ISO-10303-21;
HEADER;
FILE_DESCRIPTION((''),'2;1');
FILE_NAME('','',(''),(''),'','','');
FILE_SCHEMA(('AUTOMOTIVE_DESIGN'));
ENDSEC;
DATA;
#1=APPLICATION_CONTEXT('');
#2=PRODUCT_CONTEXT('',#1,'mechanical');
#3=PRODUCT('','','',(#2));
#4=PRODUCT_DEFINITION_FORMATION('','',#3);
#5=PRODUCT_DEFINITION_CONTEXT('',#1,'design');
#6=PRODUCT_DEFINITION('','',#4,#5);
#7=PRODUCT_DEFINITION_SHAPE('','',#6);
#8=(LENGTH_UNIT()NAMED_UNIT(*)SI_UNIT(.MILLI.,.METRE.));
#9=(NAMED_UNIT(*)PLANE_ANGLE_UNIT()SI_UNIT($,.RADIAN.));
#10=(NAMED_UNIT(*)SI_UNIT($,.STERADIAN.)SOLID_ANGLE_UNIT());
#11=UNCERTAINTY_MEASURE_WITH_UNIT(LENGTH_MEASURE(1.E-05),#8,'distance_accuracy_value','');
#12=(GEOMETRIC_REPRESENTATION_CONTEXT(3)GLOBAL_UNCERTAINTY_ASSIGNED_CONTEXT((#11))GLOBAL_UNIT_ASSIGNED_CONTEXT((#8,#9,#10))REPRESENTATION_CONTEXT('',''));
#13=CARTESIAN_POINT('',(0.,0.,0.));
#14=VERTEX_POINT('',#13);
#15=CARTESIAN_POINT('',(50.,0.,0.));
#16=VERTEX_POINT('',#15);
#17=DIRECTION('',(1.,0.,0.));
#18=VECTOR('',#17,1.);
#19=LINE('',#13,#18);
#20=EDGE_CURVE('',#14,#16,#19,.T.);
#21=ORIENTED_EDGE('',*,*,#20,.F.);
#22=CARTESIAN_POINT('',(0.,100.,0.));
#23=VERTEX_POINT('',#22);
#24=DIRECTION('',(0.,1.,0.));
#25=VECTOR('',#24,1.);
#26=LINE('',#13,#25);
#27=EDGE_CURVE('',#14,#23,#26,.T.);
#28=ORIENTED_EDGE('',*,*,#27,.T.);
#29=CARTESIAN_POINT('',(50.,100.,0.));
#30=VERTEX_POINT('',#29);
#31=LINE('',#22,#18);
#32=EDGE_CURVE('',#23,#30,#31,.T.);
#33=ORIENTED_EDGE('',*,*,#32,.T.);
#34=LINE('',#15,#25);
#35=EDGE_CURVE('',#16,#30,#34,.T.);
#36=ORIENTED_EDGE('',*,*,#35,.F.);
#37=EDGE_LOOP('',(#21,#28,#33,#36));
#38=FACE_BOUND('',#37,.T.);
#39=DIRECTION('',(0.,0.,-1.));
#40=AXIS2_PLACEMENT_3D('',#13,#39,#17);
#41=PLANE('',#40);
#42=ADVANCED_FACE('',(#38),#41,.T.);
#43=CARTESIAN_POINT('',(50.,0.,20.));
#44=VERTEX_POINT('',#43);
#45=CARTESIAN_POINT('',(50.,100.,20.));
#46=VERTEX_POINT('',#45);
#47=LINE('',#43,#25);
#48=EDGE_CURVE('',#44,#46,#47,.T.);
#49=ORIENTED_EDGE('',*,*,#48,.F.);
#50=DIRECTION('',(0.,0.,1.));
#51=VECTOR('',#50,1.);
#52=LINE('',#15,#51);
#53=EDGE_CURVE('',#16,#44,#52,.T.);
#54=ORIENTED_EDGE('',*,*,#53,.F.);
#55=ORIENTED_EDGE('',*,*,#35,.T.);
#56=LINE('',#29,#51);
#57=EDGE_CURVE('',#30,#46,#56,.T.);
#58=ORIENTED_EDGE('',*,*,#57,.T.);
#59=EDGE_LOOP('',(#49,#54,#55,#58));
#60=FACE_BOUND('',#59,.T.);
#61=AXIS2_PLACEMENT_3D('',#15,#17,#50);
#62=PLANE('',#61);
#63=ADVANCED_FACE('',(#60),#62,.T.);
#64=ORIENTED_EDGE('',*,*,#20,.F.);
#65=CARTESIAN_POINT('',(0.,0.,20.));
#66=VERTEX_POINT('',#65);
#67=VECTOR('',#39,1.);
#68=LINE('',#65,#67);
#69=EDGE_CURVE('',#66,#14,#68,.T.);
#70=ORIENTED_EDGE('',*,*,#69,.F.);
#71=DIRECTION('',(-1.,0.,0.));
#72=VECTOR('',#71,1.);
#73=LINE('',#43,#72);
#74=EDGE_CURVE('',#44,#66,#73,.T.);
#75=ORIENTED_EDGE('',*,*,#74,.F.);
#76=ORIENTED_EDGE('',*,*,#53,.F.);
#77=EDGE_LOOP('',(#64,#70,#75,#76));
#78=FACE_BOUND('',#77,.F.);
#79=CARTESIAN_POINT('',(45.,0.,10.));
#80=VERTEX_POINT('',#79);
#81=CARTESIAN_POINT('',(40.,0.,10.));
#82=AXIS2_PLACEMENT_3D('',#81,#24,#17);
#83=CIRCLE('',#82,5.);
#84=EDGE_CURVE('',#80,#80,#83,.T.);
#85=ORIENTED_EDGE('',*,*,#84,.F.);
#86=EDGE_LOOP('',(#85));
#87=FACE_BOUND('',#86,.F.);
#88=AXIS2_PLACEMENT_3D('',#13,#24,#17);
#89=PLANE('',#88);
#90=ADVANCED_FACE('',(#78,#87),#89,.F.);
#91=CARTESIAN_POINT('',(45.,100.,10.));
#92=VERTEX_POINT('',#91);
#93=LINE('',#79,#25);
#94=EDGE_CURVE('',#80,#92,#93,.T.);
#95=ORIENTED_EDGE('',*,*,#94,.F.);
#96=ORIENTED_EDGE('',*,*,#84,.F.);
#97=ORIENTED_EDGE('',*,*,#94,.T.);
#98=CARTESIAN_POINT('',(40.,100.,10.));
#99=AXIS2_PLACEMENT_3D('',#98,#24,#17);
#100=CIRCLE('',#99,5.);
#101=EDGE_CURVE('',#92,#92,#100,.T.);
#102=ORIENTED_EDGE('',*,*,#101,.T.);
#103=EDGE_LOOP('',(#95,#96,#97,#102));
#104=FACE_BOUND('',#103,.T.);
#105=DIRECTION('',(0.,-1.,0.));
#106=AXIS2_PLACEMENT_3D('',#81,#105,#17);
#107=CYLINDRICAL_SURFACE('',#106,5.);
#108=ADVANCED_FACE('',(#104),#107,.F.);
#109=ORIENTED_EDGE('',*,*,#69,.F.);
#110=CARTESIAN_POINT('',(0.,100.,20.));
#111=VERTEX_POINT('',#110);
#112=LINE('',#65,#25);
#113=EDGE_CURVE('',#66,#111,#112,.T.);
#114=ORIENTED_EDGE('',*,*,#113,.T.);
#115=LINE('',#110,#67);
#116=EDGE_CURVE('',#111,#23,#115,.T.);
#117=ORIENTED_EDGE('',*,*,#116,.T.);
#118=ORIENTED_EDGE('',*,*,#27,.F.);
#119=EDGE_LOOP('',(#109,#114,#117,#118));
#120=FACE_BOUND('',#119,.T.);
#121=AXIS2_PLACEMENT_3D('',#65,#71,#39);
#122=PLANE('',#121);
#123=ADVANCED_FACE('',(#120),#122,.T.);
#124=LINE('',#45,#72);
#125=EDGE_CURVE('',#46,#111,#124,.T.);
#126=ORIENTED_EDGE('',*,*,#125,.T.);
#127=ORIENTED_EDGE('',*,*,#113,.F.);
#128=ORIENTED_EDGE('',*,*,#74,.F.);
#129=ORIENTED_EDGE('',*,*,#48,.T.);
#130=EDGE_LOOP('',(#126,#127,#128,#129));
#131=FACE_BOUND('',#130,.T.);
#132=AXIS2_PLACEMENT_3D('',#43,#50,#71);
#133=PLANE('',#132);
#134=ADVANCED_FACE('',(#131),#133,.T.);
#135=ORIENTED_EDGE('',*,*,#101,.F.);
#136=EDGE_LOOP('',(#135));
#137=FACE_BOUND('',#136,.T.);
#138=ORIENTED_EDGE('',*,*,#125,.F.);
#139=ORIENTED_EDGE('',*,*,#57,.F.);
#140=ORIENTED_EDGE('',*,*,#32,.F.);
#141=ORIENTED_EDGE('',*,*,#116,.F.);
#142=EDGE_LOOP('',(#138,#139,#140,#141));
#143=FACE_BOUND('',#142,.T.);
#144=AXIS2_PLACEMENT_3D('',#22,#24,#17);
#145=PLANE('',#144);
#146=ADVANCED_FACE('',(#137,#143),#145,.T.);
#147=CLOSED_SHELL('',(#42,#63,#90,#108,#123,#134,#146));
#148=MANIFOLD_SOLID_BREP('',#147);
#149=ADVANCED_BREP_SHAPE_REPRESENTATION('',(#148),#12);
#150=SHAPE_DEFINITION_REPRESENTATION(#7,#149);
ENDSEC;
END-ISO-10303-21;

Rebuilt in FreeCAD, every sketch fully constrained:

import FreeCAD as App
import Part
import Sketcher
Q = App.Units.Quantity


def add_polygon(sketch, points):
    """Adds a closed chain of lines whose ends are joined by coincident constraints."""
    first, n = sketch.GeometryCount, len(points)
    for a, b in zip(points, points[1:] + points[:1]):
        sketch.addGeometry(Part.LineSegment(App.Vector(*a, 0), App.Vector(*b, 0)), False)
    for i in range(n):
        sketch.addConstraint(Sketcher.Constraint("Coincident", first + i, 2, first + (i + 1) % n, 1))

doc = App.newDocument("Part")
body = doc.addObject("PartDesign::Body", "Body")

# Sketch on XZ plane
sketch1 = body.newObject("Sketcher::SketchObject", "Sketch")
sketch1.AttachmentSupport = (doc.getObject("XZ_Plane"), [""])
sketch1.MapMode = "FlatFace"
add_polygon(sketch1, [(50, 0), (0, 0), (0, 20), (50, 20)])  # lines 0-3
sketch1.addGeometry(Part.Circle(App.Vector(40, 10, 0), App.Vector(0, 0, 1), 5), False)  # 4
sketch1.addConstraint(Sketcher.Constraint("Horizontal", 0))
sketch1.addConstraint(Sketcher.Constraint("Vertical", 1))
sketch1.addConstraint(Sketcher.Constraint("Horizontal", 2))
sketch1.addConstraint(Sketcher.Constraint("Vertical", 3))
sketch1.addConstraint(Sketcher.Constraint("Coincident", 0, 2, -1, 1))
sketch1.addConstraint(Sketcher.Constraint("Diameter", 4, Q("0.3937 in")))
sketch1.addConstraint(Sketcher.Constraint("DistanceX", 0, 2, 0, 1, Q("1.9685 in")))
sketch1.addConstraint(Sketcher.Constraint("DistanceY", 1, 1, 1, 2, Q("0.7874 in")))
sketch1.addConstraint(Sketcher.Constraint("DistanceY", -1, 1, 4, 3, Q("0.3937 in")))
sketch1.addConstraint(Sketcher.Constraint("DistanceX", 4, 3, 2, 2, Q("0.3937 in")))
pad1 = body.newObject("PartDesign::Pad", "Pad")
pad1.Profile = sketch1
pad1.Length = Q("3.9370079 in")
pad1.Reversed = True

doc.recompute()
